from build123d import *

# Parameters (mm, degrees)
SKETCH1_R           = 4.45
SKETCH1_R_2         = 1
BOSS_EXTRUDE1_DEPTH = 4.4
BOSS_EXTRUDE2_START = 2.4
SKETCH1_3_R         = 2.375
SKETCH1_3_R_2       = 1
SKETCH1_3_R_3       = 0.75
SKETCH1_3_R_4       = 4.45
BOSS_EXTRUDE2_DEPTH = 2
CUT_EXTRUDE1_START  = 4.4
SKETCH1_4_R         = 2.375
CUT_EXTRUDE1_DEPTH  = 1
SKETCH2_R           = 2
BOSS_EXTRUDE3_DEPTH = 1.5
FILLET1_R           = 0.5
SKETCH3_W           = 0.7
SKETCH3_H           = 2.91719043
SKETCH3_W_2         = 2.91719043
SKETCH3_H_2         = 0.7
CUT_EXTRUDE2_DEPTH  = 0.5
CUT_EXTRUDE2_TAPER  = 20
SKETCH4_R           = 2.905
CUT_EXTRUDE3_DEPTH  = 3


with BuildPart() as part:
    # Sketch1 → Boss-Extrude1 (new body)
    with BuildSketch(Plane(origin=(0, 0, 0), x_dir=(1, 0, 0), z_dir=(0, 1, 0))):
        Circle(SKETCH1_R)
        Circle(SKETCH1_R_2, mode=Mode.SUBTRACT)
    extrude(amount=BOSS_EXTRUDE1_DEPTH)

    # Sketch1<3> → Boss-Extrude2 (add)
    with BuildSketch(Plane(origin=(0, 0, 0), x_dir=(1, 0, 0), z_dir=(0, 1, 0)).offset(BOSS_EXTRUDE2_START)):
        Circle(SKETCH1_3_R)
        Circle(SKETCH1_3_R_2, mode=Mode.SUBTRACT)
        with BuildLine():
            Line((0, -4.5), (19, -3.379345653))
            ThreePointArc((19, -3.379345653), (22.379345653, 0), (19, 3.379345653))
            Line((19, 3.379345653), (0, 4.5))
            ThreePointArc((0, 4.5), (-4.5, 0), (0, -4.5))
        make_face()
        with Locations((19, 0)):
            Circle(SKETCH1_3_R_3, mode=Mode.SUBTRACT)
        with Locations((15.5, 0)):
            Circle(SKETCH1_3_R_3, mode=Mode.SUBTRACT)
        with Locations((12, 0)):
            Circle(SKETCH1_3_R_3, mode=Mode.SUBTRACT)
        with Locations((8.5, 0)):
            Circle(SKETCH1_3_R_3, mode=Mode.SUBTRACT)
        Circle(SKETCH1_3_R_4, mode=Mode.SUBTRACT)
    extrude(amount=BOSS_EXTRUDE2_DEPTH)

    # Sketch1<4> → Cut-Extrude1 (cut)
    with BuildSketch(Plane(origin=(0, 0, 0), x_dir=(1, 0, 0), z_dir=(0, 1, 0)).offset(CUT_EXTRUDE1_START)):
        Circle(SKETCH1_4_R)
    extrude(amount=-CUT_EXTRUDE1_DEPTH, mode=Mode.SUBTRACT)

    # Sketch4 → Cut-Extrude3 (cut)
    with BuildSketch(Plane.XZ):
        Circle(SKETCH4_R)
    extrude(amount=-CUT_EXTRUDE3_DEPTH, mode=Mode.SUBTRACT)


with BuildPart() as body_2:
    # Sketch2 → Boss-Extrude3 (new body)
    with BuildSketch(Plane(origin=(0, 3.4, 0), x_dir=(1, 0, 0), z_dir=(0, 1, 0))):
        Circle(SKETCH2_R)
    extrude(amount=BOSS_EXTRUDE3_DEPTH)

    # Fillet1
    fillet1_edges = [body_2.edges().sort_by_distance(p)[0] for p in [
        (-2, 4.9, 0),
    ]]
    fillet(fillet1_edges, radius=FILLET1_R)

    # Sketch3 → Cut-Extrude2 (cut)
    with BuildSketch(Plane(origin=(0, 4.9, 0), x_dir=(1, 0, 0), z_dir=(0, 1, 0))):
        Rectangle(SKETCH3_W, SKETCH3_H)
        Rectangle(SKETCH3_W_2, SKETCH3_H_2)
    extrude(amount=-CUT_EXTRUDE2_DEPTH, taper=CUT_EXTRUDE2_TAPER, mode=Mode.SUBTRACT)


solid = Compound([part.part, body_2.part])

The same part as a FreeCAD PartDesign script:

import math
import FreeCAD as App
import Part
import Sketcher
from FreeCAD import Vector


def edges_at(feature, points):
    """Names of the edges that pass closest to the given points."""
    edges = feature.Shape.Edges
    near = lambda p: min(range(len(edges)), key=lambda i: edges[i].distToShape(Part.Vertex(*p))[0])
    return sorted({f"Edge{near(p) + 1}" for p in points})

doc = App.newDocument("Part")
body = doc.addObject("PartDesign::Body", "Body")

sketch1 = body.newObject("Sketcher::SketchObject", "Sketch")
sketch1.AttachmentSupport = (doc.getObject("XZ_Plane"), [""])
sketch1.MapMode = "FlatFace"
sketch1.addGeometry([
    Part.Circle(Vector(0, 0, 0), Vector(0, 0, 1), 4.5),
    Part.Circle(Vector(0, 0, 0), Vector(0, 0, 1), 1),
], False)
sketch1.addConstraint([
    Sketcher.Constraint("Coincident", 0, 3, -1, 1),
    Sketcher.Constraint("Coincident", 1, 3, -1, 1),
    Sketcher.Constraint("Diameter", 1, 2.0),
    Sketcher.Constraint("Diameter", 0, 8.9),
])
pad1 = body.newObject("PartDesign::Pad", "Pad")
pad1.Profile = sketch1
pad1.Length = 4.4
pad1.Reversed = True

sketch2 = body.newObject("Sketcher::SketchObject", "Sketch001")
sketch2.AttachmentSupport = (doc.getObject("XZ_Plane"), [""])
sketch2.MapMode = "FlatFace"
sketch2.AttachmentOffset = App.Placement(Vector(0, 0, -2.4), App.Rotation())
sketch2.addGeometry([
    Part.LineSegment(Vector(0, 4.5, 0), Vector(19, 3.4, 0)),
    Part.ArcOfCircle(Part.Circle(Vector(19, 0, 0), Vector(0, 0, 1), 3.4), math.radians(-90), math.radians(90)),
    Part.LineSegment(Vector(19, -3.4, 0), Vector(0, -4.5, 0)),
    Part.ArcOfCircle(Part.Circle(Vector(0, 0, 0), Vector(0, 0, 1), 4.5), math.radians(90), math.radians(270)),
    Part.Circle(Vector(0, 0, 0), Vector(0, 0, 1), 4.5),
    Part.Circle(Vector(8.5, 0, 0), Vector(0, 0, 1), 0.8),
    Part.Circle(Vector(12, 0, 0), Vector(0, 0, 1), 0.8),
    Part.Circle(Vector(15.5, 0, 0), Vector(0, 0, 1), 0.8),
    Part.Circle(Vector(19, 0, 0), Vector(0, 0, 1), 0.8),
], False)
sketch2.addConstraint([
    Sketcher.Constraint("Coincident", 0, 2, 1, 2),
    Sketcher.Constraint("Coincident", 1, 1, 2, 1),
    Sketcher.Constraint("Coincident", 2, 2, 3, 2),
    Sketcher.Constraint("Coincident", 3, 1, 0, 1),
    Sketcher.Constraint("Coincident", 3, 3, -1, 1),
    Sketcher.Constraint("Coincident", 4, 3, -1, 1),
    Sketcher.Constraint("Coincident", 8, 3, 1, 3),
    Sketcher.Constraint("Equal", 5, 6),
    Sketcher.Constraint("Equal", 6, 7),
    Sketcher.Constraint("Equal", 7, 8),
    Sketcher.Constraint("Symmetric", 0, 2, 1, 1, -1),
    Sketcher.Constraint("PointOnObject", 5, 3, -1),
    Sketcher.Constraint("PointOnObject", 6, 3, -1),
    Sketcher.Constraint("PointOnObject", 7, 3, -1),
    Sketcher.Constraint("PointOnObject", 2, 2, -2),
    Sketcher.Constraint("PointOnObject", 3, 1, -2),
    Sketcher.Constraint("Vertical", 8, 3, 0, 2),
    Sketcher.Constraint("Diameter", 4, 8.9),
    Sketcher.Constraint("Diameter", 5, 1.5),
    Sketcher.Constraint("Radius", 3, 4.5),
    Sketcher.Constraint("DistanceX", -1, 1, 1, 3, 19.0),
    Sketcher.Constraint("DistanceX", -1, 1, 6, 3, 12.0),
    Sketcher.Constraint("DistanceX", 5, 3, 7, 3, 7.0),
    Sketcher.Constraint("DistanceX", -1, 1, 5, 3, 8.5),
    Sketcher.Constraint("Radius", 1, 3.379346),
])
pad2 = body.newObject("PartDesign::Pad", "Pad001")
pad2.Profile = sketch2
pad2.Length = 2
pad2.Reversed = True

sketch3 = body.newObject("Sketcher::SketchObject", "Sketch002")
sketch3.AttachmentSupport = (doc.getObject("XZ_Plane"), [""])
sketch3.MapMode = "FlatFace"
sketch3.AttachmentOffset = App.Placement(Vector(0, 0, -4.4), App.Rotation())
sketch3.addGeometry(Part.Circle(Vector(0, 0, 0), Vector(0, 0, 1), 2.4), False)
sketch3.addConstraint([
    Sketcher.Constraint("Coincident", 0, 3, -1, 1),
    Sketcher.Constraint("Diameter", 0, 4.75),
])
pocket1 = body.newObject("PartDesign::Pocket", "Pocket")
pocket1.Profile = sketch3
pocket1.Length = 1
pocket1.Reversed = True

sketch4 = body.newObject("Sketcher::SketchObject", "Sketch003")
sketch4.AttachmentSupport = (doc.getObject("XZ_Plane"), [""])
sketch4.MapMode = "FlatFace"
sketch4.addGeometry(Part.Circle(Vector(0, 0, 0), Vector(0, 0, 1), 2.9), False)
sketch4.addConstraint([
    Sketcher.Constraint("Coincident", 0, 3, -1, 1),
    Sketcher.Constraint("Diameter", 0, 5.81),
])
pocket2 = body.newObject("PartDesign::Pocket", "Pocket001")
pocket2.Profile = sketch4
pocket2.Length = 3
body2 = doc.addObject("PartDesign::Body", "Body001")

sketch5 = body2.newObject("Sketcher::SketchObject", "Sketch004")
sketch5.AttachmentSupport = (doc.getObject("XZ_Plane001"), [""])
sketch5.MapMode = "FlatFace"
sketch5.AttachmentOffset = App.Placement(Vector(0, 0, -3.4), App.Rotation())
sketch5.addGeometry(Part.Circle(Vector(0, 0, 0), Vector(0, 0, 1), 2), False)
sketch5.addConstraint([
    Sketcher.Constraint("Coincident", 0, 3, -1, 1),
    Sketcher.Constraint("Diameter", 0, 4.0),
])
pad3 = body2.newObject("PartDesign::Pad", "Pad002")
pad3.Profile = sketch5
pad3.Length = 1.5
pad3.Reversed = True
doc.recompute()

fillet = body2.newObject("PartDesign::Fillet", "Fillet")
fillet.Base = (pad3, edges_at(pad3, [(-2, 4.9, 0)]))
fillet.Radius = 0.5

sketch6 = body2.newObject("Sketcher::SketchObject", "Sketch005")
sketch6.AttachmentSupport = (doc.getObject("XZ_Plane001"), [""])
sketch6.MapMode = "FlatFace"
sketch6.AttachmentOffset = App.Placement(Vector(0, 0, -4.9), App.Rotation())
sketch6.addGeometry([
    Part.LineSegment(Vector(-0.3, 0.3, 0), Vector(-0.3, 1.5, 0)),
    Part.LineSegment(Vector(-0.3, 1.5, 0), Vector(0.3, 1.5, 0)),
    Part.LineSegment(Vector(0.3, 1.5, 0), Vector(0.3, 0.3, 0)),
    Part.LineSegment(Vector(0.3, 0.3, 0), Vector(1.5, 0.3, 0)),
    Part.LineSegment(Vector(1.5, 0.3, 0), Vector(1.5, -0.3, 0)),
    Part.LineSegment(Vector(1.5, -0.3, 0), Vector(0.3, -0.3, 0)),
    Part.LineSegment(Vector(0.3, -0.3, 0), Vector(0.3, -1.5, 0)),
    Part.LineSegment(Vector(0.3, -1.5, 0), Vector(-0.3, -1.5, 0)),
    Part.LineSegment(Vector(-0.3, -1.5, 0), Vector(-0.3, -0.3, 0)),
    Part.LineSegment(Vector(-0.3, -0.3, 0), Vector(-1.5, -0.3, 0)),
    Part.LineSegment(Vector(-1.5, -0.3, 0), Vector(-1.5, 0.3, 0)),
    Part.LineSegment(Vector(-1.5, 0.3, 0), Vector(-0.3, 0.3, 0)),
], False)
sketch6.addConstraint([
    Sketcher.Constraint("Coincident", 0, 2, 1, 1),
    Sketcher.Constraint("Coincident", 1, 2, 2, 1),
    Sketcher.Constraint("Coincident", 2, 2, 3, 1),
    Sketcher.Constraint("Coincident", 3, 2, 4, 1),
    Sketcher.Constraint("Coincident", 4, 2, 5, 1),
    Sketcher.Constraint("Coincident", 5, 2, 6, 1),
    Sketcher.Constraint("Coincident", 6, 2, 7, 1),
    Sketcher.Constraint("Coincident", 7, 2, 8, 1),
    Sketcher.Constraint("Coincident", 8, 2, 9, 1),
    Sketcher.Constraint("Coincident", 9, 2, 10, 1),
    Sketcher.Constraint("Coincident", 10, 2, 11, 1),
    Sketcher.Constraint("Coincident", 11, 2, 0, 1),
    Sketcher.Constraint("Vertical", 0),
    Sketcher.Constraint("Horizontal", 1),
    Sketcher.Constraint("Vertical", 2),
    Sketcher.Constraint("Horizontal", 3),
    Sketcher.Constraint("Vertical", 4),
    Sketcher.Constraint("Horizontal", 5),
    Sketcher.Constraint("Vertical", 6),
    Sketcher.Constraint("Horizontal", 7),
    Sketcher.Constraint("Vertical", 8),
    Sketcher.Constraint("Horizontal", 9),
    Sketcher.Constraint("Vertical", 10),
    Sketcher.Constraint("Horizontal", 11),
    Sketcher.Constraint("Symmetric", 0, 2, 6, 2, -1, 1),
    Sketcher.Constraint("Symmetric", 2, 2, 8, 2, -1, 1),
    Sketcher.Constraint("Symmetric", 4, 2, 10, 2, -1, 1),
    Sketcher.Constraint("Symmetric", 5, 2, 8, 2, -2),
    Sketcher.Constraint("Equal", 11, 0),
    Sketcher.Constraint("Equal", 7, 4),
    Sketcher.Constraint("DistanceX", 1, 1, 1, 2, 0.7),
    Sketcher.Constraint("DistanceX", 3, 1, 3, 2, 1.108595),
])
pocket3 = body2.newObject("PartDesign::Pocket", "Pocket002")
pocket3.Profile = sketch6
pocket3.Length = 0.5
pocket3.Reversed = True
pocket3.TaperAngle = -20

doc.recompute()
